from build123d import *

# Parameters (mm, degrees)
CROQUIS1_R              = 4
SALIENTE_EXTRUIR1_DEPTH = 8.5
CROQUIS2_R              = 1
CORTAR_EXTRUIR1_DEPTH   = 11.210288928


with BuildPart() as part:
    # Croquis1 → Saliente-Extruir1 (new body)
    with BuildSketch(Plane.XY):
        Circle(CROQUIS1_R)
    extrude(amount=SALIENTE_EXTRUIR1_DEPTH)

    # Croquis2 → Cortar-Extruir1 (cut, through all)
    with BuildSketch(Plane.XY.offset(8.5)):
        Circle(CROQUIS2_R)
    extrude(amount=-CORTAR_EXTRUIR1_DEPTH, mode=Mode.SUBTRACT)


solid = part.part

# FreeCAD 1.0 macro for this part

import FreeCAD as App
import Part
import Sketcher
from FreeCAD import Vector

doc = App.newDocument("Part")
body = doc.addObject("PartDesign::Body", "Body")

# Sketch on XY plane
sketch1 = body.newObject("Sketcher::SketchObject", "Sketch")
sketch1.AttachmentSupport = (doc.getObject("XY_Plane"), [""])
sketch1.MapMode = "FlatFace"
sketch1.addGeometry(Part.Circle(Vector(0, 0, 0), Vector(0, 0, 1), 4), False)
sketch1.addConstraint([
    Sketcher.Constraint("Coincident", 0, 3, -1, 1),
    Sketcher.Constraint("Diameter", 0, 8.0),
])
pad1 = body.newObject("PartDesign::Pad", "Pad")
pad1.Profile = sketch1
pad1.Length = 8.5

# Sketch on XY plane
sketch2 = body.newObject("Sketcher::SketchObject", "Sketch001")
sketch2.AttachmentSupport = (doc.getObject("XY_Plane"), [""])
sketch2.MapMode = "FlatFace"
sketch2.AttachmentOffset = App.Placement(Vector(0, 0, 8.5), App.Rotation())
sketch2.addGeometry(Part.Circle(Vector(0, 0, 0), Vector(0, 0, 1), 1), False)
sketch2.addConstraint([
    Sketcher.Constraint("Coincident", 0, 3, -1, 1),
    Sketcher.Constraint("Diameter", 0, 2.0),
])
pocket1 = body.newObject("PartDesign::Pocket", "Pocket")
pocket1.Profile = sketch2
pocket1.Type = "ThroughAll"

doc.recompute()
